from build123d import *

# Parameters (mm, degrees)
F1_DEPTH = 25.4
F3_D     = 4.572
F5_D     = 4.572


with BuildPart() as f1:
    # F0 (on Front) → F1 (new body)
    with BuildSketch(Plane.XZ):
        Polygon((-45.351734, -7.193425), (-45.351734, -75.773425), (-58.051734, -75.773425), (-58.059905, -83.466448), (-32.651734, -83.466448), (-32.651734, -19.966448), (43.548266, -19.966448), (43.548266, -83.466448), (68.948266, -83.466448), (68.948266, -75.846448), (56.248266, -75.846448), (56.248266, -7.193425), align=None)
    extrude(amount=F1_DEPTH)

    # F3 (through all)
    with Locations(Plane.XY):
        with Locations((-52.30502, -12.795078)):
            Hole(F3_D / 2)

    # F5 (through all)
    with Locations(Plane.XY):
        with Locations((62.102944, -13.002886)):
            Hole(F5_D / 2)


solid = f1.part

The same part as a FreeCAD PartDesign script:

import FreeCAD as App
import Part
import Sketcher
from FreeCAD import Vector
Q = App.Units.Quantity


def add_polygon(sketch, points):
    """Adds a closed chain of lines whose ends are joined by coincident constraints."""
    first, n = sketch.GeometryCount, len(points)
    for a, b in zip(points, points[1:] + points[:1]):
        sketch.addGeometry(Part.LineSegment(App.Vector(*a, 0), App.Vector(*b, 0)), False)
    for i in range(n):
        sketch.addConstraint(Sketcher.Constraint("Coincident", first + i, 2, first + (i + 1) % n, 1))

doc = App.newDocument("Part")
body = doc.addObject("PartDesign::Body", "Body")

# Sketch on XZ plane
sketch1 = doc.addObject("Sketcher::SketchObject", "Sketch")
body.addObject(sketch1)
sketch1.AttachmentSupport = (doc.XZ_Plane, [""])
sketch1.MapMode = "FlatFace"
add_polygon(sketch1, [(-45.351734, -7.193425), (-45.351734, -75.773425), (-58.051734, -75.773425), (-58.059905, -83.466448), (-32.651734, -83.466448), (-32.651734, -19.966448), (43.548266, -19.966448), (43.548266, -83.466448), (68.948266, -83.466448), (68.948266, -75.846448), (56.248266, -75.846448), (56.248266, -7.193425)])  # lines 0-11
sketch1.addConstraint(Sketcher.Constraint("Vertical", 0))
sketch1.addConstraint(Sketcher.Constraint("Horizontal", 1))
sketch1.addConstraint(Sketcher.Constraint("Horizontal", 3))
sketch1.addConstraint(Sketcher.Constraint("Vertical", 4))
sketch1.addConstraint(Sketcher.Constraint("Horizontal", 5))
sketch1.addConstraint(Sketcher.Constraint("Vertical", 6))
sketch1.addConstraint(Sketcher.Constraint("Horizontal", 7))
sketch1.addConstraint(Sketcher.Constraint("Vertical", 8))
sketch1.addConstraint(Sketcher.Constraint("Horizontal", 9))
sketch1.addConstraint(Sketcher.Constraint("Vertical", 10))
sketch1.addConstraint(Sketcher.Constraint("Horizontal", 11))
sketch1.addConstraint(Sketcher.Constraint("Horizontal", 3, 2, 6, 2))
sketch1.addConstraint(Sketcher.Constraint("Equal", 1, 9))
sketch1.addConstraint(Sketcher.Constraint("DistanceX", 5, 1, 5, 2, Q("3 in")))
sketch1.addConstraint(Sketcher.Constraint("DistanceX", 7, 1, 7, 2, Q("1 in")))
sketch1.addConstraint(Sketcher.Constraint("DistanceX", 11, 2, 11, 1, Q("4 in")))
sketch1.addConstraint(Sketcher.Constraint("DistanceX", 1, 2, 1, 1, Q("0.5 in")))
sketch1.addConstraint(Sketcher.Constraint("DistanceY", 0, 2, 0, 1, Q("2.7 in")))
sketch1.addConstraint(Sketcher.Constraint("DistanceY", 4, 1, 4, 2, Q("2.5 in")))
sketch1.addConstraint(Sketcher.Constraint("DistanceY", 8, 1, 8, 2, Q("0.3 in")))
sketch1.addConstraint(Sketcher.Constraint("DistanceX", 3, 1, 3, 2, Q("25.408171 mm")))
sketch1.addConstraint(Sketcher.Constraint("DistanceY", 10, 1, 10, 2, Q("68.653023 mm")))
sketch1.addConstraint(Sketcher.Constraint("DistanceY", 2, 2, -1, 1, Q("83.466448 mm")))
sketch1.addConstraint(Sketcher.Constraint("DistanceX", 0, 2, -1, 1, Q("45.351734 mm")))
pad1 = doc.addObject("PartDesign::Pad", "Pad")
body.addObject(pad1)
pad1.Profile = sketch1
pad1.Length = Q("1 in")

# Sketch on XY plane
sketch2 = doc.addObject("Sketcher::SketchObject", "Sketch001")
body.addObject(sketch2)
sketch2.AttachmentSupport = (doc.XY_Plane, [""])
sketch2.MapMode = "FlatFace"
sketch2.addGeometry(Part.Circle(Vector(-52.30502, -12.795078, 0), Vector(0, 0, 1), 2.286), False)
sketch2.addConstraint(Sketcher.Constraint("Diameter", 0, Q("0.18 in")))
sketch2.addConstraint(Sketcher.Constraint("DistanceX", 0, 3, -1, 1, Q("52.30502 mm")))
sketch2.addConstraint(Sketcher.Constraint("DistanceY", 0, 3, -1, 1, Q("12.795078 mm")))
doc.recompute()
hole = doc.addObject("PartDesign::Hole", "Hole")
body.addObject(hole)
hole.Profile = sketch2
hole.ThreadType = "None"
hole.Diameter = Q("0.18 in")
hole.DepthType = "ThroughAll"

# Sketch on XY plane
sketch3 = doc.addObject("Sketcher::SketchObject", "Sketch002")
body.addObject(sketch3)
sketch3.AttachmentSupport = (doc.XY_Plane, [""])
sketch3.MapMode = "FlatFace"
sketch3.addGeometry(Part.Circle(Vector(62.102944, -13.002886, 0), Vector(0, 0, 1), 2.286), False)
sketch3.addConstraint(Sketcher.Constraint("Diameter", 0, Q("0.18 in")))
sketch3.addConstraint(Sketcher.Constraint("DistanceX", -1, 1, 0, 3, Q("62.102944 mm")))
sketch3.addConstraint(Sketcher.Constraint("DistanceY", 0, 3, -1, 1, Q("13.002886 mm")))
doc.recompute()
hole2 = doc.addObject("PartDesign::Hole", "Hole001")
body.addObject(hole2)
hole2.Profile = sketch3
hole2.ThreadType = "None"
hole2.Diameter = Q("0.18 in")
hole2.DepthType = "ThroughAll"

doc.recompute()
